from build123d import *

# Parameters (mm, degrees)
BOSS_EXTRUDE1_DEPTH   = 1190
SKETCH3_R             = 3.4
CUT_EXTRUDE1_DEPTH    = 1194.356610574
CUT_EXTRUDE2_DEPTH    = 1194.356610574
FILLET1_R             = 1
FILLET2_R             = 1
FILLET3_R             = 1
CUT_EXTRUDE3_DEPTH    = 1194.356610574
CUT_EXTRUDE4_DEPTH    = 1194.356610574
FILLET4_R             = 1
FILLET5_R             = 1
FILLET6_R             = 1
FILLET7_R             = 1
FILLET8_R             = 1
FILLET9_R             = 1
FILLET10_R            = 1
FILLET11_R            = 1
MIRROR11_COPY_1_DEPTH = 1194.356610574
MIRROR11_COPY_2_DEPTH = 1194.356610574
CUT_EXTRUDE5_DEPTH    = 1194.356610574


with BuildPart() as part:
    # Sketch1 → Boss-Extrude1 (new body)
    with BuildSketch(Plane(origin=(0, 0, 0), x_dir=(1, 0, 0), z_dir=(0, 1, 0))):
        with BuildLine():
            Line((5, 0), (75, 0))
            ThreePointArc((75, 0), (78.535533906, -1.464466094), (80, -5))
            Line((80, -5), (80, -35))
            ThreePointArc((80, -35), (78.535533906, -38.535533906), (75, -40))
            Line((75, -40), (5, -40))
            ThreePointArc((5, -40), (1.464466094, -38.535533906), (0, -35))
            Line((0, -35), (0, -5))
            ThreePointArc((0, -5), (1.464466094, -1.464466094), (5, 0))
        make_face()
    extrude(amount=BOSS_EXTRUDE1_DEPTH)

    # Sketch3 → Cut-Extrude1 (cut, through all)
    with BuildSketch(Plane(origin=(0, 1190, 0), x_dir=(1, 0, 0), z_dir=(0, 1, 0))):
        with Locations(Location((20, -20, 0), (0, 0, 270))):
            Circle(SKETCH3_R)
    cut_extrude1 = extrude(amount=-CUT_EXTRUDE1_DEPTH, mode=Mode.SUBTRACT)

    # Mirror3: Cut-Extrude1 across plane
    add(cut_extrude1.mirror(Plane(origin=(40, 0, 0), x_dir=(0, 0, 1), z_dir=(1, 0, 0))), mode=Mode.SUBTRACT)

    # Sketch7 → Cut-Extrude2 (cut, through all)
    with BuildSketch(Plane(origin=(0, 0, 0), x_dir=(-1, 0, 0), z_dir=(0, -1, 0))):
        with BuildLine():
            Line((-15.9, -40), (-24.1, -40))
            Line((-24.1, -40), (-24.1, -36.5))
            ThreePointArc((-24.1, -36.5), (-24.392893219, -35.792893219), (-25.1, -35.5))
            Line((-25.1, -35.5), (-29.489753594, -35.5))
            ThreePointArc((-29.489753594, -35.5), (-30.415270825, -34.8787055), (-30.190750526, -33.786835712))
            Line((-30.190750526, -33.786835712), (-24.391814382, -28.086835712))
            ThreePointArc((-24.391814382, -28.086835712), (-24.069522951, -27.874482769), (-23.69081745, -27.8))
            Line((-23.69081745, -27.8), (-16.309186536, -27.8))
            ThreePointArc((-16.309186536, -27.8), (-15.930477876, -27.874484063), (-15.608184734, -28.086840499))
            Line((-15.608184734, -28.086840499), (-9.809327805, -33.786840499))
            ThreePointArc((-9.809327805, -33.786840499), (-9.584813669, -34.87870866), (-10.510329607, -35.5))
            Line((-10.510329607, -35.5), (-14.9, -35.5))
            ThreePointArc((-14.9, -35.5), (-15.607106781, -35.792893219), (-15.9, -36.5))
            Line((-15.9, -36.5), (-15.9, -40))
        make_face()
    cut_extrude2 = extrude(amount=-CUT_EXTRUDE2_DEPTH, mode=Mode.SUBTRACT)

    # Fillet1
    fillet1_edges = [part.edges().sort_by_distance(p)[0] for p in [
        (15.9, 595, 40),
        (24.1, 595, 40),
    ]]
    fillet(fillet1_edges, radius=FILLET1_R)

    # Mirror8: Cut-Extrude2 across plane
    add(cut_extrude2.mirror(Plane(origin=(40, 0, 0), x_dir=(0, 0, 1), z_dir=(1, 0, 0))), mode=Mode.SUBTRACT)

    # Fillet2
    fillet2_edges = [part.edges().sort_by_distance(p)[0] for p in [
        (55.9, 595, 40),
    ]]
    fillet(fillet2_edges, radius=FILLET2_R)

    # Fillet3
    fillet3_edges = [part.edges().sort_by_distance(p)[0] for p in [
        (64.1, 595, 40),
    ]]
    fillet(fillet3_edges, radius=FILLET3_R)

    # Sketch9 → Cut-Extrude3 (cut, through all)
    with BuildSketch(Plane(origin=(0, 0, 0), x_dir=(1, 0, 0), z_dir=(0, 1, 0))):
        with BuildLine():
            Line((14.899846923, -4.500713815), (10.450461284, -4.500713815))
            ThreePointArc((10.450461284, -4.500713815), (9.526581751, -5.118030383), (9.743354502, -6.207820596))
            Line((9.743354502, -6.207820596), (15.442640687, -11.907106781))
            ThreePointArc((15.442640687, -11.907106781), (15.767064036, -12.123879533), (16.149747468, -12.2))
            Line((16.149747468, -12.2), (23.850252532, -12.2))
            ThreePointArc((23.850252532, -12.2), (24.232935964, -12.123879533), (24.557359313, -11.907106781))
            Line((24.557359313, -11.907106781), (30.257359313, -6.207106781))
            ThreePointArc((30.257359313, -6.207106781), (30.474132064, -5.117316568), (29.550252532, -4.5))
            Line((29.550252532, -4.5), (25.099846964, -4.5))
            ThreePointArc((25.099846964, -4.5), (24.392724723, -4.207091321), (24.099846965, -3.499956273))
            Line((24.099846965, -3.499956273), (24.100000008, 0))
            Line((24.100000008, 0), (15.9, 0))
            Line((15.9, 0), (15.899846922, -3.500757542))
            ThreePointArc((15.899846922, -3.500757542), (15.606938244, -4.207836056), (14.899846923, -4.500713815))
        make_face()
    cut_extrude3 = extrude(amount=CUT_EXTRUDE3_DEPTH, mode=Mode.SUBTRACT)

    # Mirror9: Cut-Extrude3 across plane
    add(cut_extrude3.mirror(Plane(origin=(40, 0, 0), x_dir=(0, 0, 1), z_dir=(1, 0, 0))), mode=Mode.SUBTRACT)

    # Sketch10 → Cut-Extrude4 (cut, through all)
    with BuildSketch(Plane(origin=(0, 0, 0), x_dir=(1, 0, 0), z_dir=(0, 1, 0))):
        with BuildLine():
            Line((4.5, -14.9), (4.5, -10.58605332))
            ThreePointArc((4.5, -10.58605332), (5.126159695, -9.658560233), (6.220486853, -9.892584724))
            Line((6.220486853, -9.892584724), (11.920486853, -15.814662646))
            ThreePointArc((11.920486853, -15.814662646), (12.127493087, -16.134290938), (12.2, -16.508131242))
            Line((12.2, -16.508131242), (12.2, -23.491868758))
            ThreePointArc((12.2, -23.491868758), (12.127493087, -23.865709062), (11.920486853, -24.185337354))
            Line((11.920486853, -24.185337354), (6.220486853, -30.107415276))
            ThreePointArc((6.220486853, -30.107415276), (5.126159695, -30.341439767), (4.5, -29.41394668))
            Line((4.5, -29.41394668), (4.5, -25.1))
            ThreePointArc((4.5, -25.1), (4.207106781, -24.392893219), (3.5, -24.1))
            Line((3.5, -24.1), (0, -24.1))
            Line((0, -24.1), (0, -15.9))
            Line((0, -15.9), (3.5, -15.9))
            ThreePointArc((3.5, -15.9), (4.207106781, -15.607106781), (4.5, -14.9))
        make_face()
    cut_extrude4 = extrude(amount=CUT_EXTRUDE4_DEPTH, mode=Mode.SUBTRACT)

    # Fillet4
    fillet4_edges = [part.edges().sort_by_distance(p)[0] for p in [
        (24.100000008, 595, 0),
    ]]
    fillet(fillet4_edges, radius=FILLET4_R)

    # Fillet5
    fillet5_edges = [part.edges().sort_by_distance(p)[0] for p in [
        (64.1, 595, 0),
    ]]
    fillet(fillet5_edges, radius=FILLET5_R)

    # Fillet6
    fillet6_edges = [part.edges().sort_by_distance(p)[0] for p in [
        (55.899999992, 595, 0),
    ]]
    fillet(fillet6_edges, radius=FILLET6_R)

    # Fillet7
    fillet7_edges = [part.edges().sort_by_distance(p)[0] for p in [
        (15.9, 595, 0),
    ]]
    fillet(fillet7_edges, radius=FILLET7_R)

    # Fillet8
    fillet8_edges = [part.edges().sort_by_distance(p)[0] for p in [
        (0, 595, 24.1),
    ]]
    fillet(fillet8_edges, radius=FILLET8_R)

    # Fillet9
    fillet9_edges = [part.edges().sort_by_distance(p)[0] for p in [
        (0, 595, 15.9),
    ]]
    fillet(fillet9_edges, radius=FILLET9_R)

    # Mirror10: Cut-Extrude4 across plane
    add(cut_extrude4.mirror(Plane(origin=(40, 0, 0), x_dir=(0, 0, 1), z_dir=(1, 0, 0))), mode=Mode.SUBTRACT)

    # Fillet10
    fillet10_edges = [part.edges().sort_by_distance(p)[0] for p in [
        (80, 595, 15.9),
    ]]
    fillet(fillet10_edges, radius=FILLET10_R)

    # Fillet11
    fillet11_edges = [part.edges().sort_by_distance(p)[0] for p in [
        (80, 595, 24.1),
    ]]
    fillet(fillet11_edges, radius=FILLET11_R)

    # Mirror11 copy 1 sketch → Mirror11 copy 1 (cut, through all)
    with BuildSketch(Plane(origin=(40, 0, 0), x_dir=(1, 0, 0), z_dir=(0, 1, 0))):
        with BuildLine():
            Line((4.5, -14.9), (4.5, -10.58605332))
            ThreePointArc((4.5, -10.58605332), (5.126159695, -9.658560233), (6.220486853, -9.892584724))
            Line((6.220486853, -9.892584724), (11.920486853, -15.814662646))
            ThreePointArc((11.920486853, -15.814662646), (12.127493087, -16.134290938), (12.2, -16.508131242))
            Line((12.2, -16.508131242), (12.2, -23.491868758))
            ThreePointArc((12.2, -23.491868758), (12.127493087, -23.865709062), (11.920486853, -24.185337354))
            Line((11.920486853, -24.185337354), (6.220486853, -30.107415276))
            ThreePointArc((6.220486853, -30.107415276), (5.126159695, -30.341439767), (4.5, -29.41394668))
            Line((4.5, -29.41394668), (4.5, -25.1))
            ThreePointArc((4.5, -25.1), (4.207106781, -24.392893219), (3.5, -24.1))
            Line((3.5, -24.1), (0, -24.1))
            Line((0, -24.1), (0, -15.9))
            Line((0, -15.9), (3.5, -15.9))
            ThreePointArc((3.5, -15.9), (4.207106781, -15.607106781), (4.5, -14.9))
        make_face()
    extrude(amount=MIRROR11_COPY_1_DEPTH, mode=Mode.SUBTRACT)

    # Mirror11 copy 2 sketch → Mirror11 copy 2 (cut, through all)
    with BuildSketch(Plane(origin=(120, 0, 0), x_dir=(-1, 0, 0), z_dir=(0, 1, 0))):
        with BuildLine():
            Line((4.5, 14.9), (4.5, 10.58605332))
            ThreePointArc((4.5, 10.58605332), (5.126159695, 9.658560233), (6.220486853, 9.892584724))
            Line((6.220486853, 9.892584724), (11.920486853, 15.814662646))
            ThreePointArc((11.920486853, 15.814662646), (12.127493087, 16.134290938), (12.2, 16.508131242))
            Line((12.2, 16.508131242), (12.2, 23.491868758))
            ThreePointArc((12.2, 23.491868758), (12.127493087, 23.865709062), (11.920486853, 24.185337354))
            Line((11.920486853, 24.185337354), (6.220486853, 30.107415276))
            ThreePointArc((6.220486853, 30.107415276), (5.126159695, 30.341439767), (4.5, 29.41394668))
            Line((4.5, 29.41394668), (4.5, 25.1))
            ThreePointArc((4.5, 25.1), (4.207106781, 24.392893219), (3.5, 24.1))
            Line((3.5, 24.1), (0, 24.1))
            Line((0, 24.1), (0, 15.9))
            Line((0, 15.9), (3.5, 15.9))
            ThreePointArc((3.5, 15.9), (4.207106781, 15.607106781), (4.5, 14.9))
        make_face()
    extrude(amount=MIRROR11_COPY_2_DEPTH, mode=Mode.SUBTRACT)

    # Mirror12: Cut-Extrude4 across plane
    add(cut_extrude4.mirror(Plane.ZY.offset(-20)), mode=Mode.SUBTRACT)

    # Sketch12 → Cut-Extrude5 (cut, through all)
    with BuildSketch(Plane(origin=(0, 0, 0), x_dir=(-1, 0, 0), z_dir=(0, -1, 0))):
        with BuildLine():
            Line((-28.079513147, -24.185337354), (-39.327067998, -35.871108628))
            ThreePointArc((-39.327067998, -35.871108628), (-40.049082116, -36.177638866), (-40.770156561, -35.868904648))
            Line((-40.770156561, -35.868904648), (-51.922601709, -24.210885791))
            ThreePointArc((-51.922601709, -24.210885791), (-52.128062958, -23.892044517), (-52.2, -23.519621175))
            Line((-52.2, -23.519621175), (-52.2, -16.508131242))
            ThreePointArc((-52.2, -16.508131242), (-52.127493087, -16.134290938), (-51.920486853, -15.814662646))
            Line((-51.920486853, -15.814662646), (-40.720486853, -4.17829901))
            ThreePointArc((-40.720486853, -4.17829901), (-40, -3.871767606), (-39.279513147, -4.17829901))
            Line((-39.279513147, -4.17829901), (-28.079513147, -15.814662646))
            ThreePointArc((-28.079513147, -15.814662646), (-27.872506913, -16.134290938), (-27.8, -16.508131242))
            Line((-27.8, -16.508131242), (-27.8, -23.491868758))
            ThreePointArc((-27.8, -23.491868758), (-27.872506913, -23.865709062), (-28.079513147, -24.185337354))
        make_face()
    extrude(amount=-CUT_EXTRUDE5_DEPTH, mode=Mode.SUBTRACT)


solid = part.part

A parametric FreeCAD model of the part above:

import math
import FreeCAD as App
import Part
import Sketcher
from FreeCAD import Vector


def edges_at(feature, points):
    """Names of the edges that pass closest to the given points."""
    edges = feature.Shape.Edges
    near = lambda p: min(range(len(edges)), key=lambda i: edges[i].distToShape(Part.Vertex(*p))[0])
    return sorted({f"Edge{near(p) + 1}" for p in points})

doc = App.newDocument("Part")
body = doc.addObject("PartDesign::Body", "Body")

# Sketch on XZ plane
sketch1 = doc.addObject("Sketcher::SketchObject", "Sketch")
body.addObject(sketch1)
sketch1.AttachmentSupport = (doc.XZ_Plane, [""])
sketch1.MapMode = "FlatFace"
sketch1.addGeometry([
    Part.LineSegment(Vector(75, 0, 0), Vector(5, 0, 0)),  # 0
    Part.ArcOfCircle(Part.Circle(Vector(5, 5, 0), Vector(0, 0, 1), 5), math.radians(180), math.radians(270)),  # 1
    Part.LineSegment(Vector(0, 5, 0), Vector(0, 35, 0)),  # 2
    Part.ArcOfCircle(Part.Circle(Vector(5, 35, 0), Vector(0, 0, 1), 5), math.radians(90), math.radians(180)),  # 3
    Part.LineSegment(Vector(5, 40, 0), Vector(75, 40, 0)),  # 4
    Part.ArcOfCircle(Part.Circle(Vector(75, 35, 0), Vector(0, 0, 1), 5), math.radians(0), math.radians(90)),  # 5
    Part.LineSegment(Vector(80, 35, 0), Vector(80, 5, 0)),  # 6
    Part.ArcOfCircle(Part.Circle(Vector(75, 5, 0), Vector(0, 0, 1), 5), math.radians(-90), math.radians(0)),  # 7
], False)
sketch1.addConstraint([
    Sketcher.Constraint("Tangent", 0, 2, 1, 2),
    Sketcher.Constraint("Tangent", 1, 1, 2, 1),
    Sketcher.Constraint("Tangent", 2, 2, 3, 2),
    Sketcher.Constraint("Tangent", 3, 1, 4, 1),
    Sketcher.Constraint("Tangent", 4, 2, 5, 2),
    Sketcher.Constraint("Tangent", 5, 1, 6, 1),
    Sketcher.Constraint("Tangent", 6, 2, 7, 2),
    Sketcher.Constraint("Tangent", 7, 1, 0, 1),
    Sketcher.Constraint("Horizontal", 0),
    Sketcher.Constraint("Vertical", 2),
    Sketcher.Constraint("Horizontal", 4),
    Sketcher.Constraint("Vertical", 6),
    Sketcher.Constraint("Equal", 1, 3),
    Sketcher.Constraint("Equal", 3, 5),
    Sketcher.Constraint("Equal", 5, 7),
    Sketcher.Constraint("PointOnObject", 0, 2, -1),
    Sketcher.Constraint("PointOnObject", 1, 1, -2),
    Sketcher.Constraint("Radius", 1, 5.0),
    Sketcher.Constraint("DistanceX", 0, 2, 0, 1, 70.0),
    Sketcher.Constraint("DistanceY", 2, 1, 2, 2, 30.0),
])
pad1 = doc.addObject("PartDesign::Pad", "Pad")
body.addObject(pad1)
pad1.Profile = sketch1
pad1.Length = 1190
pad1.Reversed = True

# Sketch on XZ plane
sketch2 = doc.addObject("Sketcher::SketchObject", "Sketch001")
body.addObject(sketch2)
sketch2.AttachmentSupport = (doc.XZ_Plane, [""])
sketch2.MapMode = "FlatFace"
sketch2.AttachmentOffset = App.Placement(Vector(0, 0, -1190), App.Rotation())
sketch2.addGeometry(Part.Circle(Vector(20, 20, 0), Vector(0, 0, 1), 3.4), False)
sketch2.addConstraint([
    Sketcher.Constraint("Diameter", 0, 6.8),
    Sketcher.Constraint("DistanceX", -1, 1, 0, 3, 20.0),
    Sketcher.Constraint("DistanceY", -1, 1, 0, 3, 20.0),
])
pocket1 = doc.addObject("PartDesign::Pocket", "Pocket")
body.addObject(pocket1)
pocket1.Profile = sketch2
pocket1.Type = "ThroughAll"
pocket1.Reversed = True
doc.recompute()

datumplane = doc.addObject("PartDesign::Plane", "DatumPlane")
body.addObject(datumplane)
datumplane.AttachmentSupport = (doc.YZ_Plane, [""])
datumplane.MapMode = "FlatFace"
datumplane.AttachmentOffset = App.Placement(Vector(0, 0, 40), App.Rotation())
mirrored = doc.addObject("PartDesign::Mirrored", "Mirrored")
body.addObject(mirrored)
mirrored.Originals = [pocket1]
mirrored.MirrorPlane = (datumplane, [""])
body.Tip = mirrored

# Sketch on XZ plane
sketch3 = doc.addObject("Sketcher::SketchObject", "Sketch002")
body.addObject(sketch3)
sketch3.AttachmentSupport = (doc.XZ_Plane, [""])
sketch3.MapMode = "FlatFace"
sketch3.addGeometry([
    Part.LineSegment(Vector(24.1, 40, 0), Vector(15.9, 40, 0)),  # 0
    Part.LineSegment(Vector(15.9, 40, 0), Vector(15.9, 36.5, 0)),  # 1
    Part.ArcOfCircle(Part.Circle(Vector(14.9, 36.5, 0), Vector(0, 0, 1), 1), math.radians(-90), math.radians(0)),  # 2
    Part.LineSegment(Vector(14.9, 35.5, 0), Vector(10.51033, 35.5, 0)),  # 3
    Part.ArcOfCircle(Part.Circle(Vector(10.51033, 34.5, 0), Vector(0, 0, 1), 1), math.radians(90), math.radians(225.492566)),  # 4
    Part.LineSegment(Vector(9.809328, 33.78684, 0), Vector(15.608185, 28.08684, 0)),  # 5
    Part.ArcOfCircle(Part.Circle(Vector(16.309187, 28.8, 0), Vector(0, 0, 1), 1), math.radians(-134.507434), math.radians(-90)),  # 6
    Part.LineSegment(Vector(16.309187, 27.8, 0), Vector(23.690817, 27.8, 0)),  # 7
    Part.ArcOfCircle(Part.Circle(Vector(23.690817, 28.8, 0), Vector(0, 0, 1), 1), math.radians(-90), math.radians(-45.492957)),  # 8
    Part.LineSegment(Vector(24.391814, 28.086836, 0), Vector(30.190751, 33.786836, 0)),  # 9
    Part.ArcOfCircle(Part.Circle(Vector(29.489754, 34.5, 0), Vector(0, 0, 1), 1), math.radians(-45.492957), math.radians(90)),  # 10
    Part.LineSegment(Vector(29.489754, 35.5, 0), Vector(25.1, 35.5, 0)),  # 11
    Part.ArcOfCircle(Part.Circle(Vector(25.1, 36.5, 0), Vector(0, 0, 1), 1), math.radians(-180), math.radians(-90)),  # 12
    Part.LineSegment(Vector(24.1, 36.5, 0), Vector(24.1, 40, 0)),  # 13
], False)
sketch3.addConstraint([
    Sketcher.Constraint("Coincident", 0, 2, 1, 1),
    Sketcher.Constraint("Tangent", 1, 2, 2, 2),
    Sketcher.Constraint("Tangent", 2, 1, 3, 1),
    Sketcher.Constraint("Tangent", 3, 2, 4, 1),
    Sketcher.Constraint("Tangent", 4, 2, 5, 1),
    Sketcher.Constraint("Tangent", 5, 2, 6, 1),
    Sketcher.Constraint("Tangent", 6, 2, 7, 1),
    Sketcher.Constraint("Tangent", 7, 2, 8, 1),
    Sketcher.Constraint("Tangent", 8, 2, 9, 1),
    Sketcher.Constraint("Tangent", 9, 2, 10, 1),
    Sketcher.Constraint("Tangent", 10, 2, 11, 1),
    Sketcher.Constraint("Tangent", 11, 2, 12, 2),
    Sketcher.Constraint("Tangent", 12, 1, 13, 1),
    Sketcher.Constraint("Coincident", 13, 2, 0, 1),
    Sketcher.Constraint("Horizontal", 0),
    Sketcher.Constraint("Vertical", 1),
    Sketcher.Constraint("Horizontal", 3),
    Sketcher.Constraint("Horizontal", 7),
    Sketcher.Constraint("Horizontal", 11),
    Sketcher.Constraint("Vertical", 13),
    Sketcher.Constraint("Equal", 2, 4),
    Sketcher.Constraint("Equal", 4, 6),
    Sketcher.Constraint("Equal", 6, 8),
    Sketcher.Constraint("Equal", 8, 10),
    Sketcher.Constraint("Equal", 10, 12),
    Sketcher.Constraint("Horizontal", 4, 3, 10, 3),
    Sketcher.Constraint("Radius", 2, 1.0),
    Sketcher.Constraint("DistanceX", 0, 2, 0, 1, 8.2),
    Sketcher.Constraint("DistanceY", 1, 2, 1, 1, 3.5),
    Sketcher.Constraint("DistanceY", -1, 1, 0, 2, 40.0),
    Sketcher.Constraint("DistanceX", -1, 1, 2, 3, 14.9),
    Sketcher.Constraint("DistanceY", -1, 1, 6, 3, 28.8),
    Sketcher.Constraint("DistanceX", 4, 2, 4, 3, 0.701002),
    Sketcher.Constraint("DistanceX", 3, 2, 3, 1, 4.38967),
    Sketcher.Constraint("DistanceX", 7, 1, 7, 2, 7.381631),
    Sketcher.Constraint("DistanceX", 11, 2, 11, 1, 4.389754),
])
pocket2 = doc.addObject("PartDesign::Pocket", "Pocket001")
body.addObject(pocket2)
pocket2.Profile = sketch3
pocket2.Type = "ThroughAll"
doc.recompute()

fillet = doc.addObject("PartDesign::Fillet", "Fillet")
body.addObject(fillet)
fillet.Base = (pocket2, edges_at(pocket2, [(15.9, 595, 40), (24.1, 595, 40)]))
fillet.Radius = 1
doc.recompute()

datumplane2 = doc.addObject("PartDesign::Plane", "DatumPlane001")
body.addObject(datumplane2)
datumplane2.AttachmentSupport = (doc.YZ_Plane, [""])
datumplane2.MapMode = "FlatFace"
datumplane2.AttachmentOffset = App.Placement(Vector(0, 0, 40), App.Rotation())
mirrored2 = doc.addObject("PartDesign::Mirrored", "Mirrored001")
body.addObject(mirrored2)
mirrored2.Originals = [pocket2]
mirrored2.MirrorPlane = (datumplane2, [""])
body.Tip = mirrored2
doc.recompute()

fillet2 = doc.addObject("PartDesign::Fillet", "Fillet001")
body.addObject(fillet2)
fillet2.Base = (mirrored2, edges_at(mirrored2, [(55.9, 595, 40)]))
fillet2.Radius = 1
doc.recompute()

fillet3 = doc.addObject("PartDesign::Fillet", "Fillet002")
body.addObject(fillet3)
fillet3.Base = (fillet2, edges_at(fillet2, [(64.1, 595, 40)]))
fillet3.Radius = 1

# Sketch on XZ plane
sketch4 = doc.addObject("Sketcher::SketchObject", "Sketch003")
body.addObject(sketch4)
sketch4.AttachmentSupport = (doc.XZ_Plane, [""])
sketch4.MapMode = "FlatFace"
sketch4.addGeometry([
    Part.LineSegment(Vector(14.899847, 4.500714, 0), Vector(10.450461, 4.500714, 0)),  # 0
    Part.ArcOfCircle(Part.Circle(Vector(10.450461, 5.500714, 0), Vector(0, 0, 1), 1), math.radians(135), math.radians(270)),  # 1
    Part.LineSegment(Vector(9.743355, 6.207821, 0), Vector(15.442641, 11.907107, 0)),  # 2
    Part.ArcOfCircle(Part.Circle(Vector(16.149747, 11.2, 0), Vector(0, 0, 1), 1), math.radians(90), math.radians(135)),  # 3
    Part.LineSegment(Vector(16.149747, 12.2, 0), Vector(23.850253, 12.2, 0)),  # 4
    Part.ArcOfCircle(Part.Circle(Vector(23.850253, 11.2, 0), Vector(0, 0, 1), 1), math.radians(45), math.radians(90)),  # 5
    Part.LineSegment(Vector(24.557359, 11.907107, 0), Vector(30.257359, 6.207107, 0)),  # 6
    Part.ArcOfCircle(Part.Circle(Vector(29.550253, 5.5, 0), Vector(0, 0, 1), 1), math.radians(-90), math.radians(45)),  # 7
    Part.LineSegment(Vector(29.550253, 4.5, 0), Vector(25.099847, 4.5, 0)),  # 8
    Part.ArcOfCircle(Part.Circle(Vector(25.099847, 3.5, 0), Vector(0, 0, 1), 1), math.radians(90), math.radians(180.002505)),  # 9
    Part.LineSegment(Vector(24.099847, 3.499956, 0), Vector(24.1, 0, 0)),  # 10
    Part.LineSegment(Vector(24.1, 0, 0), Vector(15.9, 0, 0)),  # 11
    Part.LineSegment(Vector(15.9, 0, 0), Vector(15.899847, 3.500758, 0)),  # 12
    Part.ArcOfCircle(Part.Circle(Vector(14.899847, 3.500714, 0), Vector(0, 0, 1), 1), math.radians(0.002505), math.radians(90)),  # 13
], False)
sketch4.addConstraint([
    Sketcher.Constraint("Tangent", 0, 2, 1, 2),
    Sketcher.Constraint("Tangent", 1, 1, 2, 1),
    Sketcher.Constraint("Tangent", 2, 2, 3, 2),
    Sketcher.Constraint("Tangent", 3, 1, 4, 1),
    Sketcher.Constraint("Tangent", 4, 2, 5, 2),
    Sketcher.Constraint("Tangent", 5, 1, 6, 1),
    Sketcher.Constraint("Tangent", 6, 2, 7, 2),
    Sketcher.Constraint("Tangent", 7, 1, 8, 1),
    Sketcher.Constraint("Tangent", 8, 2, 9, 1),
    Sketcher.Constraint("Tangent", 9, 2, 10, 1),
    Sketcher.Constraint("Coincident", 10, 2, 11, 1),
    Sketcher.Constraint("Coincident", 11, 2, 12, 1),
    Sketcher.Constraint("Tangent", 12, 2, 13, 1),
    Sketcher.Constraint("Tangent", 13, 2, 0, 1),
    Sketcher.Constraint("Horizontal", 0),
    Sketcher.Constraint("Horizontal", 4),
    Sketcher.Constraint("Horizontal", 8),
    Sketcher.Constraint("Horizontal", 11),
    Sketcher.Constraint("Equal", 1, 3),
    Sketcher.Constraint("Equal", 3, 5),
    Sketcher.Constraint("Equal", 5, 7),
    Sketcher.Constraint("Equal", 7, 9),
    Sketcher.Constraint("Equal", 9, 13),
    Sketcher.Constraint("PointOnObject", 10, 2, -1),
    Sketcher.Constraint("Perpendicular", 2, 6),
    Sketcher.Constraint("Parallel", 10, 12),
    Sketcher.Constraint("Horizontal", 2, 2, 5, 1),
    Sketcher.Constraint("Radius", 1, 1.0),
    Sketcher.Constraint("DistanceX", 11, 2, 11, 1, 8.2),
    Sketcher.Constraint("DistanceY", -1, 1, 3, 3, 11.2),
    Sketcher.Constraint("DistanceY", -1, 1, 7, 3, 5.5),
    Sketcher.Constraint("DistanceX", -1, 1, 10, 2, 24.1),
    Sketcher.Constraint("DistanceX", 3, 3, 9, 3, 8.950099),
    Sketcher.Constraint("DistanceX", 1, 1, 5, 3, 14.106898),
    Sketcher.Constraint("DistanceX", 0, 2, 0, 1, 4.449386),
    Sketcher.Constraint("DistanceX", -1, 1, 1, 3, 10.450461),
])
pocket3 = doc.addObject("PartDesign::Pocket", "Pocket002")
body.addObject(pocket3)
pocket3.Profile = sketch4
pocket3.Type = "ThroughAll"
doc.recompute()

datumplane3 = doc.addObject("PartDesign::Plane", "DatumPlane002")
body.addObject(datumplane3)
datumplane3.AttachmentSupport = (doc.YZ_Plane, [""])
datumplane3.MapMode = "FlatFace"
datumplane3.AttachmentOffset = App.Placement(Vector(0, 0, 40), App.Rotation())
mirrored3 = doc.addObject("PartDesign::Mirrored", "Mirrored002")
body.addObject(mirrored3)
mirrored3.Originals = [pocket3]
mirrored3.MirrorPlane = (datumplane3, [""])
body.Tip = mirrored3

# Sketch on XZ plane
sketch5 = doc.addObject("Sketcher::SketchObject", "Sketch004")
body.addObject(sketch5)
sketch5.AttachmentSupport = (doc.XZ_Plane, [""])
sketch5.MapMode = "FlatFace"
sketch5.addGeometry([
    Part.LineSegment(Vector(4.5, 10.586053, 0), Vector(4.5, 14.9, 0)),  # 0
    Part.ArcOfCircle(Part.Circle(Vector(3.5, 14.9, 0), Vector(0, 0, 1), 1), math.radians(0), math.radians(90)),  # 1
    Part.LineSegment(Vector(3.5, 15.9, 0), Vector(0, 15.9, 0)),  # 2
    Part.LineSegment(Vector(0, 15.9, 0), Vector(0, 24.1, 0)),  # 3
    Part.LineSegment(Vector(0, 24.1, 0), Vector(3.5, 24.1, 0)),  # 4
    Part.ArcOfCircle(Part.Circle(Vector(3.5, 25.1, 0), Vector(0, 0, 1), 1), math.radians(-90), math.radians(0)),  # 5
    Part.LineSegment(Vector(4.5, 25.1, 0), Vector(4.5, 29.413947, 0)),  # 6
    Part.ArcOfCircle(Part.Circle(Vector(5.5, 29.413947, 0), Vector(0, 0, 1), 1), math.radians(43.905309), math.radians(180)),  # 7
    Part.LineSegment(Vector(6.220487, 30.107415, 0), Vector(11.920487, 24.185337, 0)),  # 8
    Part.ArcOfCircle(Part.Circle(Vector(11.2, 23.491869, 0), Vector(0, 0, 1), 1), math.radians(0), math.radians(43.905309)),  # 9
    Part.LineSegment(Vector(12.2, 23.491869, 0), Vector(12.2, 16.508131, 0)),  # 10
    Part.ArcOfCircle(Part.Circle(Vector(11.2, 16.508131, 0), Vector(0, 0, 1), 1), math.radians(-43.905309), math.radians(0)),  # 11
    Part.LineSegment(Vector(11.920487, 15.814663, 0), Vector(6.220487, 9.892585, 0)),  # 12
    Part.ArcOfCircle(Part.Circle(Vector(5.5, 10.586053, 0), Vector(0, 0, 1), 1), math.radians(180), math.radians(316.094691)),  # 13
], False)
sketch5.addConstraint([
    Sketcher.Constraint("Tangent", 0, 2, 1, 1),
    Sketcher.Constraint("Tangent", 1, 2, 2, 1),
    Sketcher.Constraint("Coincident", 2, 2, 3, 1),
    Sketcher.Constraint("Coincident", 3, 2, 4, 1),
    Sketcher.Constraint("Tangent", 4, 2, 5, 1),
    Sketcher.Constraint("Tangent", 5, 2, 6, 1),
    Sketcher.Constraint("Tangent", 6, 2, 7, 2),
    Sketcher.Constraint("Tangent", 7, 1, 8, 1),
    Sketcher.Constraint("Tangent", 8, 2, 9, 2),
    Sketcher.Constraint("Tangent", 9, 1, 10, 1),
    Sketcher.Constraint("Tangent", 10, 2, 11, 2),
    Sketcher.Constraint("Tangent", 11, 1, 12, 1),
    Sketcher.Constraint("Tangent", 12, 2, 13, 2),
    Sketcher.Constraint("Tangent", 13, 1, 0, 1),
    Sketcher.Constraint("Vertical", 0),
    Sketcher.Constraint("Horizontal", 2),
    Sketcher.Constraint("Vertical", 3),
    Sketcher.Constraint("Horizontal", 4),
    Sketcher.Constraint("Vertical", 6),
    Sketcher.Constraint("Vertical", 10),
    Sketcher.Constraint("Equal", 1, 5),
    Sketcher.Constraint("Equal", 5, 7),
    Sketcher.Constraint("Equal", 7, 9),
    Sketcher.Constraint("Equal", 9, 11),
    Sketcher.Constraint("Equal", 11, 13),
    Sketcher.Constraint("PointOnObject", 2, 2, -2),
    Sketcher.Constraint("Vertical", 1, 3, 5, 3),
    Sketcher.Constraint("Vertical", 8, 2, 11, 1),
    Sketcher.Constraint("Equal", 0, 6),
    Sketcher.Constraint("Radius", 1, 1.0),
    Sketcher.Constraint("DistanceX", 2, 2, 2, 1, 3.5),
    Sketcher.Constraint("DistanceY", 3, 1, 3, 2, 8.2),
    Sketcher.Constraint("DistanceY", -1, 1, 1, 3, 14.9),
    Sketcher.Constraint("DistanceX", -1, 1, 9, 3, 11.2),
    Sketcher.Constraint("Distance", 8, 8.21955),
    Sketcher.Constraint("DistanceY", 0, 1, 0, 2, 4.313947),
])
pocket4 = doc.addObject("PartDesign::Pocket", "Pocket003")
body.addObject(pocket4)
pocket4.Profile = sketch5
pocket4.Type = "ThroughAll"
doc.recompute()

fillet4 = doc.addObject("PartDesign::Fillet", "Fillet003")
body.addObject(fillet4)
fillet4.Base = (pocket4, edges_at(pocket4, [(24.1, 595, 0)]))
fillet4.Radius = 1
doc.recompute()

fillet5 = doc.addObject("PartDesign::Fillet", "Fillet004")
body.addObject(fillet5)
fillet5.Base = (fillet4, edges_at(fillet4, [(64.1, 595, 0)]))
fillet5.Radius = 1
doc.recompute()

fillet6 = doc.addObject("PartDesign::Fillet", "Fillet005")
body.addObject(fillet6)
fillet6.Base = (fillet5, edges_at(fillet5, [(55.9, 595, 0)]))
fillet6.Radius = 1
doc.recompute()

fillet7 = doc.addObject("PartDesign::Fillet", "Fillet006")
body.addObject(fillet7)
fillet7.Base = (fillet6, edges_at(fillet6, [(15.9, 595, 0)]))
fillet7.Radius = 1
doc.recompute()

fillet8 = doc.addObject("PartDesign::Fillet", "Fillet007")
body.addObject(fillet8)
fillet8.Base = (fillet7, edges_at(fillet7, [(0, 595, 24.1)]))
fillet8.Radius = 1
doc.recompute()

fillet9 = doc.addObject("PartDesign::Fillet", "Fillet008")
body.addObject(fillet9)
fillet9.Base = (fillet8, edges_at(fillet8, [(0, 595, 15.9)]))
fillet9.Radius = 1
doc.recompute()

datumplane4 = doc.addObject("PartDesign::Plane", "DatumPlane003")
body.addObject(datumplane4)
datumplane4.AttachmentSupport = (doc.YZ_Plane, [""])
datumplane4.MapMode = "FlatFace"
datumplane4.AttachmentOffset = App.Placement(Vector(0, 0, 40), App.Rotation())
mirrored4 = doc.addObject("PartDesign::Mirrored", "Mirrored003")
body.addObject(mirrored4)
mirrored4.Originals = [pocket4]
mirrored4.MirrorPlane = (datumplane4, [""])
body.Tip = mirrored4
doc.recompute()

fillet10 = doc.addObject("PartDesign::Fillet", "Fillet009")
body.addObject(fillet10)
fillet10.Base = (mirrored4, edges_at(mirrored4, [(80, 595, 15.9)]))
fillet10.Radius = 1
doc.recompute()

fillet11 = doc.addObject("PartDesign::Fillet", "Fillet010")
body.addObject(fillet11)
fillet11.Base = (fillet10, edges_at(fillet10, [(80, 595, 24.1)]))
fillet11.Radius = 1

# Sketch on XZ plane
sketch6 = doc.addObject("Sketcher::SketchObject", "Sketch005")
body.addObject(sketch6)
sketch6.AttachmentSupport = (doc.XZ_Plane, [""])
sketch6.MapMode = "FlatFace"
sketch6.addGeometry([
    Part.LineSegment(Vector(44.5, 10.586053, 0), Vector(44.5, 14.9, 0)),  # 0
    Part.ArcOfCircle(Part.Circle(Vector(43.5, 14.9, 0), Vector(0, 0, 1), 1), math.radians(0), math.radians(90)),  # 1
    Part.LineSegment(Vector(43.5, 15.9, 0), Vector(40, 15.9, 0)),  # 2
    Part.LineSegment(Vector(40, 15.9, 0), Vector(40, 24.1, 0)),  # 3
    Part.LineSegment(Vector(40, 24.1, 0), Vector(43.5, 24.1, 0)),  # 4
    Part.ArcOfCircle(Part.Circle(Vector(43.5, 25.1, 0), Vector(0, 0, 1), 1), math.radians(-90), math.radians(0)),  # 5
    Part.LineSegment(Vector(44.5, 25.1, 0), Vector(44.5, 29.413947, 0)),  # 6
    Part.ArcOfCircle(Part.Circle(Vector(45.5, 29.413947, 0), Vector(0, 0, 1), 1), math.radians(43.905309), math.radians(180)),  # 7
    Part.LineSegment(Vector(46.220487, 30.107415, 0), Vector(51.920487, 24.185337, 0)),  # 8
    Part.ArcOfCircle(Part.Circle(Vector(51.2, 23.491869, 0), Vector(0, 0, 1), 1), math.radians(0), math.radians(43.905309)),  # 9
    Part.LineSegment(Vector(52.2, 23.491869, 0), Vector(52.2, 16.508131, 0)),  # 10
    Part.ArcOfCircle(Part.Circle(Vector(51.2, 16.508131, 0), Vector(0, 0, 1), 1), math.radians(-43.905309), math.radians(0)),  # 11
    Part.LineSegment(Vector(51.920487, 15.814663, 0), Vector(46.220487, 9.892585, 0)),  # 12
    Part.ArcOfCircle(Part.Circle(Vector(45.5, 10.586053, 0), Vector(0, 0, 1), 1), math.radians(180), math.radians(316.094691)),  # 13
], False)
sketch6.addConstraint([
    Sketcher.Constraint("Tangent", 0, 2, 1, 1),
    Sketcher.Constraint("Tangent", 1, 2, 2, 1),
    Sketcher.Constraint("Coincident", 2, 2, 3, 1),
    Sketcher.Constraint("Coincident", 3, 2, 4, 1),
    Sketcher.Constraint("Tangent", 4, 2, 5, 1),
    Sketcher.Constraint("Tangent", 5, 2, 6, 1),
    Sketcher.Constraint("Tangent", 6, 2, 7, 2),
    Sketcher.Constraint("Tangent", 7, 1, 8, 1),
    Sketcher.Constraint("Tangent", 8, 2, 9, 2),
    Sketcher.Constraint("Tangent", 9, 1, 10, 1),
    Sketcher.Constraint("Tangent", 10, 2, 11, 2),
    Sketcher.Constraint("Tangent", 11, 1, 12, 1),
    Sketcher.Constraint("Tangent", 12, 2, 13, 2),
    Sketcher.Constraint("Tangent", 13, 1, 0, 1),
    Sketcher.Constraint("Vertical", 0),
    Sketcher.Constraint("Horizontal", 2),
    Sketcher.Constraint("Vertical", 3),
    Sketcher.Constraint("Horizontal", 4),
    Sketcher.Constraint("Vertical", 6),
    Sketcher.Constraint("Vertical", 10),
    Sketcher.Constraint("Equal", 1, 5),
    Sketcher.Constraint("Equal", 5, 7),
    Sketcher.Constraint("Equal", 7, 9),
    Sketcher.Constraint("Equal", 9, 11),
    Sketcher.Constraint("Equal", 11, 13),
    Sketcher.Constraint("Vertical", 1, 3, 5, 3),
    Sketcher.Constraint("Vertical", 8, 2, 11, 1),
    Sketcher.Constraint("Equal", 0, 6),
    Sketcher.Constraint("Radius", 1, 1.0),
    Sketcher.Constraint("DistanceX", 2, 2, 2, 1, 3.5),
    Sketcher.Constraint("DistanceY", 3, 1, 3, 2, 8.2),
    Sketcher.Constraint("DistanceX", -1, 1, 2, 2, 40.0),
    Sketcher.Constraint("DistanceY", -1, 1, 1, 3, 14.9),
    Sketcher.Constraint("DistanceX", -1, 1, 9, 3, 51.2),
    Sketcher.Constraint("Distance", 8, 8.21955),
    Sketcher.Constraint("DistanceY", 0, 1, 0, 2, 4.313947),
])
pocket5 = doc.addObject("PartDesign::Pocket", "Pocket004")
body.addObject(pocket5)
pocket5.Profile = sketch6
pocket5.Type = "ThroughAll"

# Sketch on XZ plane
sketch7 = doc.addObject("Sketcher::SketchObject", "Sketch006")
body.addObject(sketch7)
sketch7.AttachmentSupport = (doc.XZ_Plane, [""])
sketch7.MapMode = "FlatFace"
sketch7.addGeometry([
    Part.LineSegment(Vector(115.5, 14.9, 0), Vector(115.5, 10.586053, 0)),  # 0
    Part.ArcOfCircle(Part.Circle(Vector(114.5, 10.586053, 0), Vector(0, 0, 1), 1), math.radians(-136.094691), math.radians(0)),  # 1
    Part.LineSegment(Vector(113.779513, 9.892585, 0), Vector(108.079513, 15.814663, 0)),  # 2
    Part.ArcOfCircle(Part.Circle(Vector(108.8, 16.508131, 0), Vector(0, 0, 1), 1), math.radians(-180), math.radians(-136.094691)),  # 3
    Part.LineSegment(Vector(107.8, 16.508131, 0), Vector(107.8, 23.491869, 0)),  # 4
    Part.ArcOfCircle(Part.Circle(Vector(108.8, 23.491869, 0), Vector(0, 0, 1), 1), math.radians(136.094691), math.radians(180)),  # 5
    Part.LineSegment(Vector(108.079513, 24.185337, 0), Vector(113.779513, 30.107415, 0)),  # 6
    Part.ArcOfCircle(Part.Circle(Vector(114.5, 29.413947, 0), Vector(0, 0, 1), 1), math.radians(0), math.radians(136.094691)),  # 7
    Part.LineSegment(Vector(115.5, 29.413947, 0), Vector(115.5, 25.1, 0)),  # 8
    Part.ArcOfCircle(Part.Circle(Vector(116.5, 25.1, 0), Vector(0, 0, 1), 1), math.radians(-180), math.radians(-90)),  # 9
    Part.LineSegment(Vector(116.5, 24.1, 0), Vector(120, 24.1, 0)),  # 10
    Part.LineSegment(Vector(120, 24.1, 0), Vector(120, 15.9, 0)),  # 11
    Part.LineSegment(Vector(120, 15.9, 0), Vector(116.5, 15.9, 0)),  # 12
    Part.ArcOfCircle(Part.Circle(Vector(116.5, 14.9, 0), Vector(0, 0, 1), 1), math.radians(90), math.radians(180)),  # 13
], False)
sketch7.addConstraint([
    Sketcher.Constraint("Tangent", 0, 2, 1, 2),
    Sketcher.Constraint("Tangent", 1, 1, 2, 1),
    Sketcher.Constraint("Tangent", 2, 2, 3, 2),
    Sketcher.Constraint("Tangent", 3, 1, 4, 1),
    Sketcher.Constraint("Tangent", 4, 2, 5, 2),
    Sketcher.Constraint("Tangent", 5, 1, 6, 1),
    Sketcher.Constraint("Tangent", 6, 2, 7, 2),
    Sketcher.Constraint("Tangent", 7, 1, 8, 1),
    Sketcher.Constraint("Tangent", 8, 2, 9, 1),
    Sketcher.Constraint("Tangent", 9, 2, 10, 1),
    Sketcher.Constraint("Coincident", 10, 2, 11, 1),
    Sketcher.Constraint("Coincident", 11, 2, 12, 1),
    Sketcher.Constraint("Tangent", 12, 2, 13, 1),
    Sketcher.Constraint("Tangent", 13, 2, 0, 1),
    Sketcher.Constraint("Vertical", 0),
    Sketcher.Constraint("Vertical", 4),
    Sketcher.Constraint("Vertical", 8),
    Sketcher.Constraint("Horizontal", 10),
    Sketcher.Constraint("Vertical", 11),
    Sketcher.Constraint("Horizontal", 12),
    Sketcher.Constraint("Equal", 1, 3),
    Sketcher.Constraint("Equal", 3, 5),
    Sketcher.Constraint("Equal", 5, 7),
    Sketcher.Constraint("Equal", 7, 9),
    Sketcher.Constraint("Equal", 9, 13),
    Sketcher.Constraint("Vertical", 1, 3, 7, 3),
    Sketcher.Constraint("Vertical", 2, 2, 5, 1),
    Sketcher.Constraint("Equal", 0, 8),
    Sketcher.Constraint("Radius", 1, 1.0),
    Sketcher.Constraint("DistanceX", 10, 1, 10, 2, 3.5),
    Sketcher.Constraint("DistanceY", 11, 2, 11, 1, 8.2),
    Sketcher.Constraint("DistanceX", -1, 1, 10, 2, 120.0),
    Sketcher.Constraint("DistanceX", -1, 1, 3, 3, 108.8),
    Sketcher.Constraint("DistanceY", -1, 1, 9, 3, 25.1),
    Sketcher.Constraint("Distance", 2, 8.21955),
    Sketcher.Constraint("DistanceY", 0, 2, 0, 1, 4.313947),
])
pocket6 = doc.addObject("PartDesign::Pocket", "Pocket005")
body.addObject(pocket6)
pocket6.Profile = sketch7
pocket6.Type = "ThroughAll"
doc.recompute()

datumplane5 = doc.addObject("PartDesign::Plane", "DatumPlane004")
body.addObject(datumplane5)
datumplane5.AttachmentSupport = (doc.YZ_Plane, [""])
datumplane5.MapMode = "FlatFace"
datumplane5.AttachmentOffset = App.Placement(Vector(0, 0, 20), App.Rotation())
mirrored5 = doc.addObject("PartDesign::Mirrored", "Mirrored004")
body.addObject(mirrored5)
mirrored5.Originals = [pocket4]
mirrored5.MirrorPlane = (datumplane5, [""])
body.Tip = mirrored5

# Sketch on XZ plane
sketch8 = doc.addObject("Sketcher::SketchObject", "Sketch007")
body.addObject(sketch8)
sketch8.AttachmentSupport = (doc.XZ_Plane, [""])
sketch8.MapMode = "FlatFace"
sketch8.addGeometry([
    Part.LineSegment(Vector(39.327068, 35.871109, 0), Vector(28.079513, 24.185337, 0)),  # 0
    Part.ArcOfCircle(Part.Circle(Vector(28.8, 23.491869, 0), Vector(0, 0, 1), 1), math.radians(136.094691), math.radians(180)),  # 1
    Part.LineSegment(Vector(27.8, 23.491869, 0), Vector(27.8, 16.508131, 0)),  # 2
    Part.ArcOfCircle(Part.Circle(Vector(28.8, 16.508131, 0), Vector(0, 0, 1), 1), math.radians(-180), math.radians(-136.094691)),  # 3
    Part.LineSegment(Vector(28.079513, 15.814663, 0), Vector(39.279513, 4.178299, 0)),  # 4
    Part.ArcOfCircle(Part.Circle(Vector(40, 4.871768, 0), Vector(0, 0, 1), 1), math.radians(-136.094691), math.radians(-43.905309)),  # 5
    Part.LineSegment(Vector(40.720487, 4.178299, 0), Vector(51.920487, 15.814663, 0)),  # 6
    Part.ArcOfCircle(Part.Circle(Vector(51.2, 16.508131, 0), Vector(0, 0, 1), 1), math.radians(-43.905309), math.radians(0)),  # 7
    Part.LineSegment(Vector(52.2, 16.508131, 0), Vector(52.2, 23.519621, 0)),  # 8
    Part.ArcOfCircle(Part.Circle(Vector(51.2, 23.519621, 0), Vector(0, 0, 1), 1), math.radians(0), math.radians(43.730298)),  # 9
    Part.LineSegment(Vector(51.922602, 24.210886, 0), Vector(40.770157, 35.868905, 0)),  # 10
    Part.ArcOfCircle(Part.Circle(Vector(40.047555, 35.17764, 0), Vector(0, 0, 1), 1), math.radians(43.730298), math.radians(136.094691)),  # 11
], False)
sketch8.addConstraint([
    Sketcher.Constraint("Tangent", 0, 2, 1, 1),
    Sketcher.Constraint("Tangent", 1, 2, 2, 1),
    Sketcher.Constraint("Tangent", 2, 2, 3, 1),
    Sketcher.Constraint("Tangent", 3, 2, 4, 1),
    Sketcher.Constraint("Tangent", 4, 2, 5, 1),
    Sketcher.Constraint("Tangent", 5, 2, 6, 1),
    Sketcher.Constraint("Tangent", 6, 2, 7, 1),
    Sketcher.Constraint("Tangent", 7, 2, 8, 1),
    Sketcher.Constraint("Tangent", 8, 2, 9, 1),
    Sketcher.Constraint("Tangent", 9, 2, 10, 1),
    Sketcher.Constraint("Tangent", 10, 2, 11, 1),
    Sketcher.Constraint("Tangent", 11, 2, 0, 1),
    Sketcher.Constraint("Vertical", 2),
    Sketcher.Constraint("Vertical", 8),
    Sketcher.Constraint("Equal", 1, 3),
    Sketcher.Constraint("Equal", 3, 5),
    Sketcher.Constraint("Equal", 5, 7),
    Sketcher.Constraint("Equal", 7, 9),
    Sketcher.Constraint("Equal", 9, 11),
    Sketcher.Constraint("Parallel", 0, 6),
    Sketcher.Constraint("Horizontal", 3, 3, 7, 3),
    Sketcher.Constraint("Horizontal", 4, 2, 5, 2),
    Sketcher.Constraint("Radius", 1, 1.0),
    Sketcher.Constraint("DistanceX", -1, 1, 5, 3, 40.0),
    Sketcher.Constraint("DistanceX", -1, 1, 1, 3, 28.8),
    Sketcher.Constraint("DistanceY", 8, 1, 8, 2, 7.01149),
    Sketcher.Constraint("DistanceY", -1, 1, 4, 2, 4.178299),
    Sketcher.Constraint("DistanceX", -1, 1, 9, 2, 51.922602),
    Sketcher.Constraint("DistanceY", 5, 3, 1, 3, 18.620101),
    Sketcher.Constraint("Distance", 0, 16.219271),
])
pocket7 = doc.addObject("PartDesign::Pocket", "Pocket006")
body.addObject(pocket7)
pocket7.Profile = sketch8
pocket7.Type = "ThroughAll"

doc.recompute()
